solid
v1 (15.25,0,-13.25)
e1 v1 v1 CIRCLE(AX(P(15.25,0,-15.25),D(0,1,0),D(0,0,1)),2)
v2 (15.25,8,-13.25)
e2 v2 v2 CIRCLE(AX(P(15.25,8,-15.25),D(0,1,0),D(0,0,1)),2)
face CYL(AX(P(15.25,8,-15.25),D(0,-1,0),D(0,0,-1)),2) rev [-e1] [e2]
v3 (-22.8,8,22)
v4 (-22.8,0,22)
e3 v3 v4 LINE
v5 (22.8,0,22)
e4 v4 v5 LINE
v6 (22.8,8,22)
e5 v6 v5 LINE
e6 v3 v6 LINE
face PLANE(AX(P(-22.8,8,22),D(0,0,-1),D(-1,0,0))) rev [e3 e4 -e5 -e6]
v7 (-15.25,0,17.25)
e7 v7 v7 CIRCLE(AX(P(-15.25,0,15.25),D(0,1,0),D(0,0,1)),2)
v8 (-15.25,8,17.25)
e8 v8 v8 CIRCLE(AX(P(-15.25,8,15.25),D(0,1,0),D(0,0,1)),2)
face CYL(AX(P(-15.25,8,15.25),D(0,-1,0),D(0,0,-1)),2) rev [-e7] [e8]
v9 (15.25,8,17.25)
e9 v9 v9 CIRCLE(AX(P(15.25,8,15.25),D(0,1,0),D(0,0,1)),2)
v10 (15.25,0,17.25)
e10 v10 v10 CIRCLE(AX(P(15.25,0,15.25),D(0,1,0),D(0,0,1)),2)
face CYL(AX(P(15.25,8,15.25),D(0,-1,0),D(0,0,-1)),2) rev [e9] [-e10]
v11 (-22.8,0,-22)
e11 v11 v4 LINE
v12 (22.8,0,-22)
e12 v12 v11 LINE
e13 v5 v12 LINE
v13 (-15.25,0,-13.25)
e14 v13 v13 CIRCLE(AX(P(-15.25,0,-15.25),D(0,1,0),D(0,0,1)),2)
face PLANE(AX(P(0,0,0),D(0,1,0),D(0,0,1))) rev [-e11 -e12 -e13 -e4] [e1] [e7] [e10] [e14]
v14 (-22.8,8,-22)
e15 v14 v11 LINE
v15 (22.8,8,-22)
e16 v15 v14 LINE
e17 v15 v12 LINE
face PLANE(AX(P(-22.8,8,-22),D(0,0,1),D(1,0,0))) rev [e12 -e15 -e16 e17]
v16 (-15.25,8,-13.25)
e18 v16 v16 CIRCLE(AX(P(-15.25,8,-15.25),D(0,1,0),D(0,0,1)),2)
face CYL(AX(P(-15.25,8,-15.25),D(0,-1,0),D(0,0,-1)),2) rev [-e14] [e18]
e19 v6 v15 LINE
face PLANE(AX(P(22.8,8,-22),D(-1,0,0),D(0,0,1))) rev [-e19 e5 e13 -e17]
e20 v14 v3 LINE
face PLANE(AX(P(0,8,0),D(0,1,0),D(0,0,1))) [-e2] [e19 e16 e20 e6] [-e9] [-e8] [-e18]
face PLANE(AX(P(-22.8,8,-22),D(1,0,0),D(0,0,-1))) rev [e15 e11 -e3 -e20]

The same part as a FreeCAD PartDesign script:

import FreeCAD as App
import Part
import Sketcher
Q = App.Units.Quantity


def add_polygon(sketch, points):
    """Adds a closed chain of lines whose ends are joined by coincident constraints."""
    first, n = sketch.GeometryCount, len(points)
    for a, b in zip(points, points[1:] + points[:1]):
        sketch.addGeometry(Part.LineSegment(App.Vector(*a, 0), App.Vector(*b, 0)), False)
    for i in range(n):
        sketch.addConstraint(Sketcher.Constraint("Coincident", first + i, 2, first + (i + 1) % n, 1))

doc = App.newDocument("Part")
body = doc.addObject("PartDesign::Body", "Body")

sketch1 = body.newObject("Sketcher::SketchObject", "Sketch")
sketch1.AttachmentSupport = (doc.getObject("XZ_Plane"), [""])
sketch1.MapMode = "FlatFace"
add_polygon(sketch1, [(-22.8, -22), (-22.8, 22), (22.8, 22), (22.8, -22)])
sketch1.addGeometry(Part.Circle(App.Vector(-15.25, 15.25, 0), App.Vector(0, 0, 1), 2), False)
sketch1.addGeometry(Part.Circle(App.Vector(15.25, 15.25, 0), App.Vector(0, 0, 1), 2), False)
sketch1.addGeometry(Part.Circle(App.Vector(-15.25, -15.25, 0), App.Vector(0, 0, 1), 2), False)
sketch1.addGeometry(Part.Circle(App.Vector(15.25, -15.25, 0), App.Vector(0, 0, 1), 2), False)
sketch1.addConstraint(Sketcher.Constraint("Vertical", 0))
sketch1.addConstraint(Sketcher.Constraint("Horizontal", 1))
sketch1.addConstraint(Sketcher.Constraint("Vertical", 2))
sketch1.addConstraint(Sketcher.Constraint("Horizontal", 3))
sketch1.addConstraint(Sketcher.Constraint("Equal", 4, 5))
sketch1.addConstraint(Sketcher.Constraint("Equal", 5, 6))
sketch1.addConstraint(Sketcher.Constraint("Equal", 6, 7))
sketch1.addConstraint(Sketcher.Constraint("Symmetric", 5, 3, 6, 3, -1, 1))
sketch1.addConstraint(Sketcher.Constraint("Symmetric", 4, 3, 7, 3, -1, 1))
sketch1.addConstraint(Sketcher.Constraint("Symmetric", 0, 2, 2, 2, -1, 1))
sketch1.addConstraint(Sketcher.Constraint("Symmetric", 4, 3, 5, 3, -2))
sketch1.addConstraint(Sketcher.Constraint("Diameter", 4, Q("4 mm")))
sketch1.addConstraint(Sketcher.Constraint("DistanceY", 0, 1, 0, 2, Q("44 mm")))
sketch1.addConstraint(Sketcher.Constraint("DistanceX", 1, 1, 1, 2, Q("45.6 mm")))
sketch1.addConstraint(Sketcher.Constraint("DistanceX", 4, 3, 5, 3, Q("30.5 mm")))
sketch1.addConstraint(Sketcher.Constraint("DistanceY", 6, 3, 4, 3, Q("30.5 mm")))
pad1 = body.newObject("PartDesign::Pad", "Pad")
pad1.Profile = sketch1
pad1.Length = 8
pad1.Reversed = True

doc.recompute()
